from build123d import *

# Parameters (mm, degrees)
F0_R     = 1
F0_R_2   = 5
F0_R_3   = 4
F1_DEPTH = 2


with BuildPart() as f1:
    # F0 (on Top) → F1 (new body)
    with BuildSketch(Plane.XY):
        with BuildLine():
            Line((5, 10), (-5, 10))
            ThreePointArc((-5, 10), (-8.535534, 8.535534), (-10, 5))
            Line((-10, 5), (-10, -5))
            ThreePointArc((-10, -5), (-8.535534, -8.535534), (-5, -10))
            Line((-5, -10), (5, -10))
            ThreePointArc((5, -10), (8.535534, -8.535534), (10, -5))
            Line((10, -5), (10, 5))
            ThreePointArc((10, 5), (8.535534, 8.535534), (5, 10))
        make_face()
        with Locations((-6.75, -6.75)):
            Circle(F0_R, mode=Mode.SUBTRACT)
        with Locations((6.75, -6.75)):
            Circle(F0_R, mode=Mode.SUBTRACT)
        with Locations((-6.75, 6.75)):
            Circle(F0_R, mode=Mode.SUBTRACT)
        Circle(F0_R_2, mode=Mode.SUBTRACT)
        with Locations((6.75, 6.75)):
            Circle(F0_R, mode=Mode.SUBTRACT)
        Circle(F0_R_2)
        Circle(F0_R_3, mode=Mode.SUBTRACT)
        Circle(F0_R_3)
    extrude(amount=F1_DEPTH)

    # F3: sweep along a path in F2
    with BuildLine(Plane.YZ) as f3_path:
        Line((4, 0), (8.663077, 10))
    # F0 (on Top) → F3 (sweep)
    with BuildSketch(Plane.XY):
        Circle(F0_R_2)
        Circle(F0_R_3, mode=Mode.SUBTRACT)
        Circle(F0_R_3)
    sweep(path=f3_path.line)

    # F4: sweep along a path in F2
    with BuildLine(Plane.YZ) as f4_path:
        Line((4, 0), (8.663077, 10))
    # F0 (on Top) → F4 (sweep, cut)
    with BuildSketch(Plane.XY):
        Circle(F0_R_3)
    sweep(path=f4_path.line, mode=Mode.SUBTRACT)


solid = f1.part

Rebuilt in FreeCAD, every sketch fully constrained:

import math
import FreeCAD as App
import Part
import Sketcher
from FreeCAD import Vector

doc = App.newDocument("Part")
body = doc.addObject("PartDesign::Body", "Body")

# Sketch on XY plane
sketch1 = body.newObject("Sketcher::SketchObject", "Sketch")
sketch1.AttachmentSupport = (doc.getObject("XY_Plane"), [""])
sketch1.MapMode = "FlatFace"
sketch1.addGeometry([
    Part.LineSegment(Vector(5, 10, 0), Vector(-5, 10, 0)),  # 0
    Part.ArcOfCircle(Part.Circle(Vector(-5, 5, 0), Vector(0, 0, 1), 5), math.radians(90), math.radians(180)),  # 1
    Part.LineSegment(Vector(-10, 5, 0), Vector(-10, -5, 0)),  # 2
    Part.ArcOfCircle(Part.Circle(Vector(-5, -5, 0), Vector(0, 0, 1), 5), math.radians(180), math.radians(270)),  # 3
    Part.LineSegment(Vector(-5, -10, 0), Vector(5, -10, 0)),  # 4
    Part.ArcOfCircle(Part.Circle(Vector(5, -5, 0), Vector(0, 0, 1), 5), math.radians(-90), math.radians(0)),  # 5
    Part.LineSegment(Vector(10, -5, 0), Vector(10, 5, 0)),  # 6
    Part.ArcOfCircle(Part.Circle(Vector(5, 5, 0), Vector(0, 0, 1), 5), math.radians(0), math.radians(90)),  # 7
    Part.Circle(Vector(-6.8, -6.8, 0), Vector(0, 0, 1), 1),  # 8
    Part.Circle(Vector(6.8, -6.8, 0), Vector(0, 0, 1), 1),  # 9
    Part.Circle(Vector(-6.8, 6.8, 0), Vector(0, 0, 1), 1),  # 10
    Part.Circle(Vector(6.8, 6.8, 0), Vector(0, 0, 1), 1),  # 11
], False)
sketch1.addConstraint([
    Sketcher.Constraint("Tangent", 0, 2, 1, 1),
    Sketcher.Constraint("Tangent", 1, 2, 2, 1),
    Sketcher.Constraint("Tangent", 2, 2, 3, 1),
    Sketcher.Constraint("Tangent", 3, 2, 4, 1),
    Sketcher.Constraint("Tangent", 4, 2, 5, 1),
    Sketcher.Constraint("Tangent", 5, 2, 6, 1),
    Sketcher.Constraint("Tangent", 6, 2, 7, 1),
    Sketcher.Constraint("Tangent", 7, 2, 0, 1),
    Sketcher.Constraint("Horizontal", 0),
    Sketcher.Constraint("Vertical", 2),
    Sketcher.Constraint("Horizontal", 4),
    Sketcher.Constraint("Vertical", 6),
    Sketcher.Constraint("Equal", 1, 3),
    Sketcher.Constraint("Equal", 3, 5),
    Sketcher.Constraint("Equal", 5, 7),
    Sketcher.Constraint("Equal", 8, 9),
    Sketcher.Constraint("Equal", 9, 10),
    Sketcher.Constraint("Equal", 10, 11),
    Sketcher.Constraint("Symmetric", 1, 3, 5, 3, -1, 1),
    Sketcher.Constraint("Symmetric", 9, 3, 10, 3, -1, 1),
    Sketcher.Constraint("Symmetric", 8, 3, 11, 3, -1, 1),
    Sketcher.Constraint("Symmetric", 8, 3, 9, 3, -2),
    Sketcher.Constraint("Equal", 4, 2),
    Sketcher.Constraint("Diameter", 8, 2.0),
    Sketcher.Constraint("Radius", 1, 5.0),
    Sketcher.Constraint("DistanceX", 0, 2, 0, 1, 10.0),
    Sketcher.Constraint("DistanceX", 8, 3, 9, 3, 13.5),
    Sketcher.Constraint("DistanceY", 8, 3, 10, 3, 13.5),
])
pad1 = body.newObject("PartDesign::Pad", "Pad")
pad1.Profile = sketch1
pad1.Length = 2

# Sketch on XY plane
sketch2 = body.newObject("Sketcher::SketchObject", "Sketch001")
sketch2.AttachmentSupport = (doc.getObject("XY_Plane"), [""])
sketch2.MapMode = "FlatFace"
sketch2.addGeometry(Part.Circle(Vector(0, 0, 0), Vector(0, 0, 1), 5), False)
sketch2.addConstraint([
    Sketcher.Constraint("Coincident", 0, 3, -1, 1),
    Sketcher.Constraint("Diameter", 0, 10.0),
])

# Sketch on an angled plane
sketch3 = body.newObject("Sketcher::SketchObject", "Sketch002")
sketch3.Placement = App.Placement(Vector(0, 3.285575, -1.532089), App.Rotation(Vector(0, -0.422618293, -0.906307773), Vector(1.000000001, 0, 0), Vector(0, -0.906307773, 0.422618293), "ZXY"))
sketch3.addGeometry(Part.LineSegment(Vector(-2, 0, 0), Vector(-13, 0, 0)), False)
sketch3.addConstraint([
    Sketcher.Constraint("Horizontal", 0),
    Sketcher.Constraint("PointOnObject", 0, 1, -1),
    Sketcher.Constraint("DistanceX", 0, 2, 0, 1, 11.033779),
    Sketcher.Constraint("DistanceX", 0, 1, -1, 1, 1.690473),
])
doc.recompute()

additivepipe = body.newObject("PartDesign::AdditivePipe", "AdditivePipe")
additivepipe.Profile = sketch2
additivepipe.Spine = (sketch3, ["Edge1"])

# Sketch on XY plane
sketch4 = body.newObject("Sketcher::SketchObject", "Sketch003")
sketch4.AttachmentSupport = (doc.getObject("XY_Plane"), [""])
sketch4.MapMode = "FlatFace"
sketch4.addGeometry(Part.Circle(Vector(0, 0, 0), Vector(0, 0, 1), 4), False)
sketch4.addConstraint([
    Sketcher.Constraint("Coincident", 0, 3, -1, 1),
    Sketcher.Constraint("Diameter", 0, 8.0),
])

# Sketch on an angled plane
sketch5 = body.newObject("Sketcher::SketchObject", "Sketch004")
sketch5.Placement = App.Placement(Vector(0, 3.285575, -1.532089), App.Rotation(Vector(0, -0.422618293, -0.906307773), Vector(1.000000001, 0, 0), Vector(0, -0.906307773, 0.422618293), "ZXY"))
sketch5.addGeometry(Part.LineSegment(Vector(-2, 0, 0), Vector(-13, 0, 0)), False)
sketch5.addConstraint([
    Sketcher.Constraint("Horizontal", 0),
    Sketcher.Constraint("PointOnObject", 0, 1, -1),
    Sketcher.Constraint("DistanceX", 0, 2, 0, 1, 11.033779),
    Sketcher.Constraint("DistanceX", 0, 1, -1, 1, 1.690473),
])
doc.recompute()

subtractivepipe = body.newObject("PartDesign::SubtractivePipe", "SubtractivePipe")
subtractivepipe.Profile = sketch4
subtractivepipe.Spine = (sketch5, ["Edge1"])

doc.recompute()
